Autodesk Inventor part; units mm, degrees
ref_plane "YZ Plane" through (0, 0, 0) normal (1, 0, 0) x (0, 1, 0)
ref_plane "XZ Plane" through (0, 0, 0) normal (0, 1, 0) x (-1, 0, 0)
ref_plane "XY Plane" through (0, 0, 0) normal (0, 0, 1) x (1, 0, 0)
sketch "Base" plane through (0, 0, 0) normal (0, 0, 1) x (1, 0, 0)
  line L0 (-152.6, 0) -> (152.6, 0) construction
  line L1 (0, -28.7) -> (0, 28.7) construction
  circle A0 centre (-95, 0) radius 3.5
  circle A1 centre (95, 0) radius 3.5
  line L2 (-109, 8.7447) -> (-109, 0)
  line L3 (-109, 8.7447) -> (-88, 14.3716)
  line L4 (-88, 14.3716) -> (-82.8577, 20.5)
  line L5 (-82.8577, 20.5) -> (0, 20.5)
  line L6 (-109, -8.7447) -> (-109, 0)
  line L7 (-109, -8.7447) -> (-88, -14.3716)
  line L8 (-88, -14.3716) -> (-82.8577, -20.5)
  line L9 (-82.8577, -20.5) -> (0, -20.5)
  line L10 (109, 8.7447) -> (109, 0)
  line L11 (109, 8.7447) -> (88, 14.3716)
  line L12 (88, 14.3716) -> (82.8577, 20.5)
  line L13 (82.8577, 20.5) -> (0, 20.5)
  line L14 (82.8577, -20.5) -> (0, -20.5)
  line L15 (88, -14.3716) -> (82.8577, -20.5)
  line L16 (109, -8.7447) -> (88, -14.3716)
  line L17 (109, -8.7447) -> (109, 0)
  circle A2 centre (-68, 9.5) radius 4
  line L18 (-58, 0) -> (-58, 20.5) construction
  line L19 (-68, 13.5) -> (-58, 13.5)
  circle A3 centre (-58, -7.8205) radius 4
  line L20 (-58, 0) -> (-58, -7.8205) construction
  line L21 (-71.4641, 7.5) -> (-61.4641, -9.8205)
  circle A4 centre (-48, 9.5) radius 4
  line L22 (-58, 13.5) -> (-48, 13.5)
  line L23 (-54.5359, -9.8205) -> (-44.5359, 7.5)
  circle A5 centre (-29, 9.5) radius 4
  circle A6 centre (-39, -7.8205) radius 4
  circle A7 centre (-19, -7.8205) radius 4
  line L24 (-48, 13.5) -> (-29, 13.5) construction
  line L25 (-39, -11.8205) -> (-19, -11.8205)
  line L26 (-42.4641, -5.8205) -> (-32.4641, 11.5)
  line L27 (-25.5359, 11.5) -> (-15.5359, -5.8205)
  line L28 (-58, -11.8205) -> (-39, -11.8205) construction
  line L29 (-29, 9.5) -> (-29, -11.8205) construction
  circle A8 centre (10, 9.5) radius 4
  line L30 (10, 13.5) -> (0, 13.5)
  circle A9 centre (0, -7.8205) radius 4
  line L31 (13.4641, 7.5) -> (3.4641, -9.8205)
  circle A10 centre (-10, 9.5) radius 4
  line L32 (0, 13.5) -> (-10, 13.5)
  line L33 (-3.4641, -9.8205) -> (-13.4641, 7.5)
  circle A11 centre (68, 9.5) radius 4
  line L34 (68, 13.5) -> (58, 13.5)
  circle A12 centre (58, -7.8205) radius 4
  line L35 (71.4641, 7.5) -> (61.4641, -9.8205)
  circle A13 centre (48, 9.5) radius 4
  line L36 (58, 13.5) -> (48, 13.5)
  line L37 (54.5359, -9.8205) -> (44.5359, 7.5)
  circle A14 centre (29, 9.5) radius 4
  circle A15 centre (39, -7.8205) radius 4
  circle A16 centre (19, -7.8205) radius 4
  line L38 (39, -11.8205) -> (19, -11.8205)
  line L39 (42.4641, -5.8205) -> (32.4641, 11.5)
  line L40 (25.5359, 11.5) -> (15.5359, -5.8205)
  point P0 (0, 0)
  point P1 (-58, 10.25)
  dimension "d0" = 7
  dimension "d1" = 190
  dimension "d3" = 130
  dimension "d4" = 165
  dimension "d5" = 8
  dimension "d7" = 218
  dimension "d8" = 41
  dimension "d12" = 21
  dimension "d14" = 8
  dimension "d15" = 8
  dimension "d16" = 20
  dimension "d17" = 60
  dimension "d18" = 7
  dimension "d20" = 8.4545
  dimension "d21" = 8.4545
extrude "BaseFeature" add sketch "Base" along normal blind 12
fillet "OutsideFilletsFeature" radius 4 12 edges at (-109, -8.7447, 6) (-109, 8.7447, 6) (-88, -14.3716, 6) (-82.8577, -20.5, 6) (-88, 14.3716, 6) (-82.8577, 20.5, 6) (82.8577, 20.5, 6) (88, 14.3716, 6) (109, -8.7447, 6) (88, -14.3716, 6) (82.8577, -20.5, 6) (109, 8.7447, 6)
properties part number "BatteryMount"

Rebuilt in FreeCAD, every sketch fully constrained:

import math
import FreeCAD as App
import Part
import Sketcher
from FreeCAD import Vector
Q = App.Units.Quantity


def edges_at(feature, points):
    """Names of the edges that pass closest to the given points."""
    edges = feature.Shape.Edges
    near = lambda p: min(range(len(edges)), key=lambda i: edges[i].distToShape(Part.Vertex(*p))[0])
    return sorted({f"Edge{near(p) + 1}" for p in points})


def add_polygon(sketch, points):
    """Adds a closed chain of lines whose ends are joined by coincident constraints."""
    first, n = sketch.GeometryCount, len(points)
    for a, b in zip(points, points[1:] + points[:1]):
        sketch.addGeometry(Part.LineSegment(App.Vector(*a, 0), App.Vector(*b, 0)), False)
    for i in range(n):
        sketch.addConstraint(Sketcher.Constraint("Coincident", first + i, 2, first + (i + 1) % n, 1))

doc = App.newDocument("Part")
body = doc.addObject("PartDesign::Body", "Body")

sketch1 = body.newObject("Sketcher::SketchObject", "Sketch")
sketch1.AttachmentSupport = (doc.getObject("XY_Plane"), [""])
sketch1.MapMode = "FlatFace"
add_polygon(sketch1, [(-88, 14.3716), (-109, 8.7447), (-109, -8.7447), (-88, -14.3716), (-82.8577, -20.5), (82.8577, -20.5), (88, -14.3716), (109, -8.7447), (109, 8.7447), (88, 14.3716), (82.8577, 20.5), (-82.8577, 20.5)])
sketch1.addGeometry(Part.Circle(Vector(-95, 0, 0), Vector(0, 0, 1), 3.5), False)
sketch1.addGeometry(Part.ArcOfCircle(Part.Circle(Vector(-68, 9.5, 0), Vector(0, 0, 1), 4), math.radians(90), math.radians(210.000012)), False)
sketch1.addGeometry(Part.LineSegment(Vector(-68, 13.5, 0), Vector(-48, 13.5, 0)), False)
sketch1.addGeometry(Part.ArcOfCircle(Part.Circle(Vector(-48, 9.5, 0), Vector(0, 0, 1), 4), math.radians(-30.000012), math.radians(90)), False)
sketch1.addGeometry(Part.LineSegment(Vector(-44.5359, 7.5, 0), Vector(-54.5359, -9.8205, 0)), False)
sketch1.addGeometry(Part.ArcOfCircle(Part.Circle(Vector(-58, -7.8205, 0), Vector(0, 0, 1), 4), math.radians(-149.999988), math.radians(-30.000012)), False)
sketch1.addGeometry(Part.LineSegment(Vector(-61.4641, -9.8205, 0), Vector(-71.4641, 7.5, 0)), False)
sketch1.addGeometry(Part.ArcOfCircle(Part.Circle(Vector(-29, 9.5, 0), Vector(0, 0, 1), 4), math.radians(30.000012), math.radians(149.999988)), False)
sketch1.addGeometry(Part.LineSegment(Vector(-25.5359, 11.5, 0), Vector(-15.5359, -5.8205, 0)), False)
sketch1.addGeometry(Part.ArcOfCircle(Part.Circle(Vector(-19, -7.8205, 0), Vector(0, 0, 1), 4), math.radians(-90), math.radians(30.000012)), False)
sketch1.addGeometry(Part.LineSegment(Vector(-19, -11.8205, 0), Vector(-39, -11.8205, 0)), False)
sketch1.addGeometry(Part.ArcOfCircle(Part.Circle(Vector(-39, -7.8205, 0), Vector(0, 0, 1), 4), math.radians(149.999988), math.radians(270)), False)
sketch1.addGeometry(Part.LineSegment(Vector(-42.4641, -5.8205, 0), Vector(-32.4641, 11.5, 0)), False)
sketch1.addGeometry(Part.ArcOfCircle(Part.Circle(Vector(10, 9.5, 0), Vector(0, 0, 1), 4), math.radians(-30.000012), math.radians(90)), False)
sketch1.addGeometry(Part.LineSegment(Vector(13.4641, 7.5, 0), Vector(3.4641, -9.8205, 0)), False)
sketch1.addGeometry(Part.ArcOfCircle(Part.Circle(Vector(0, -7.8205, 0), Vector(0, 0, 1), 4), math.radians(-149.999988), math.radians(-30.000012)), False)
sketch1.addGeometry(Part.LineSegment(Vector(-3.4641, -9.8205, 0), Vector(-13.4641, 7.5, 0)), False)
sketch1.addGeometry(Part.ArcOfCircle(Part.Circle(Vector(-10, 9.5, 0), Vector(0, 0, 1), 4), math.radians(90), math.radians(210.000012)), False)
sketch1.addGeometry(Part.LineSegment(Vector(-10, 13.5, 0), Vector(10, 13.5, 0)), False)
sketch1.addGeometry(Part.ArcOfCircle(Part.Circle(Vector(29, 9.5, 0), Vector(0, 0, 1), 4), math.radians(30.000012), math.radians(149.999988)), False)
sketch1.addGeometry(Part.LineSegment(Vector(32.4641, 11.5, 0), Vector(42.4641, -5.8205, 0)), False)
sketch1.addGeometry(Part.ArcOfCircle(Part.Circle(Vector(39, -7.8205, 0), Vector(0, 0, 1), 4), math.radians(-90), math.radians(30.000012)), False)
sketch1.addGeometry(Part.LineSegment(Vector(39, -11.8205, 0), Vector(19, -11.8205, 0)), False)
sketch1.addGeometry(Part.ArcOfCircle(Part.Circle(Vector(19, -7.8205, 0), Vector(0, 0, 1), 4), math.radians(149.999988), math.radians(270)), False)
sketch1.addGeometry(Part.LineSegment(Vector(15.5359, -5.8205, 0), Vector(25.5359, 11.5, 0)), False)
sketch1.addGeometry(Part.ArcOfCircle(Part.Circle(Vector(68, 9.5, 0), Vector(0, 0, 1), 4), math.radians(-30.000012), math.radians(90)), False)
sketch1.addGeometry(Part.LineSegment(Vector(71.4641, 7.5, 0), Vector(61.4641, -9.8205, 0)), False)
sketch1.addGeometry(Part.ArcOfCircle(Part.Circle(Vector(58, -7.8205, 0), Vector(0, 0, 1), 4), math.radians(-149.999988), math.radians(-30.000012)), False)
sketch1.addGeometry(Part.LineSegment(Vector(54.5359, -9.8205, 0), Vector(44.5359, 7.5, 0)), False)
sketch1.addGeometry(Part.ArcOfCircle(Part.Circle(Vector(48, 9.5, 0), Vector(0, 0, 1), 4), math.radians(90), math.radians(210.000012)), False)
sketch1.addGeometry(Part.LineSegment(Vector(48, 13.5, 0), Vector(68, 13.5, 0)), False)
sketch1.addGeometry(Part.Circle(Vector(95, 0, 0), Vector(0, 0, 1), 3.5), False)
sketch1.addConstraint([
    Sketcher.Constraint("Tangent", 13, 1, 14, 1),
    Sketcher.Constraint("Tangent", 14, 2, 15, 2),
    Sketcher.Constraint("Tangent", 15, 1, 16, 1),
    Sketcher.Constraint("Tangent", 16, 2, 17, 2),
    Sketcher.Constraint("Tangent", 17, 1, 18, 1),
    Sketcher.Constraint("Tangent", 18, 2, 13, 2),
    Sketcher.Constraint("Tangent", 19, 1, 20, 1),
    Sketcher.Constraint("Tangent", 20, 2, 21, 2),
    Sketcher.Constraint("Tangent", 21, 1, 22, 1),
    Sketcher.Constraint("Tangent", 22, 2, 23, 2),
    Sketcher.Constraint("Tangent", 23, 1, 24, 1),
    Sketcher.Constraint("Tangent", 24, 2, 19, 2),
    Sketcher.Constraint("Tangent", 25, 1, 26, 1),
    Sketcher.Constraint("Tangent", 26, 2, 27, 2),
    Sketcher.Constraint("Tangent", 27, 1, 28, 1),
    Sketcher.Constraint("Tangent", 28, 2, 29, 2),
    Sketcher.Constraint("Tangent", 29, 1, 30, 1),
    Sketcher.Constraint("Tangent", 30, 2, 25, 2),
    Sketcher.Constraint("Tangent", 31, 1, 32, 1),
    Sketcher.Constraint("Tangent", 32, 2, 33, 2),
    Sketcher.Constraint("Tangent", 33, 1, 34, 1),
    Sketcher.Constraint("Tangent", 34, 2, 35, 2),
    Sketcher.Constraint("Tangent", 35, 1, 36, 1),
    Sketcher.Constraint("Tangent", 36, 2, 31, 2),
    Sketcher.Constraint("Tangent", 37, 1, 38, 1),
    Sketcher.Constraint("Tangent", 38, 2, 39, 2),
    Sketcher.Constraint("Tangent", 39, 1, 40, 1),
    Sketcher.Constraint("Tangent", 40, 2, 41, 2),
    Sketcher.Constraint("Tangent", 41, 1, 42, 1),
    Sketcher.Constraint("Tangent", 42, 2, 37, 2),
    Sketcher.Constraint("Vertical", 1),
    Sketcher.Constraint("Horizontal", 4),
    Sketcher.Constraint("Vertical", 7),
    Sketcher.Constraint("Horizontal", 10),
    Sketcher.Constraint("Horizontal", 14),
    Sketcher.Constraint("Horizontal", 22),
    Sketcher.Constraint("Horizontal", 30),
    Sketcher.Constraint("Horizontal", 34),
    Sketcher.Constraint("Horizontal", 42),
    Sketcher.Constraint("Equal", 13, 15),
    Sketcher.Constraint("Equal", 15, 17),
    Sketcher.Constraint("Equal", 17, 19),
    Sketcher.Constraint("Equal", 19, 21),
    Sketcher.Constraint("Equal", 21, 23),
    Sketcher.Constraint("Equal", 23, 25),
    Sketcher.Constraint("Equal", 25, 27),
    Sketcher.Constraint("Equal", 27, 29),
    Sketcher.Constraint("Equal", 29, 31),
    Sketcher.Constraint("Equal", 31, 33),
    Sketcher.Constraint("Equal", 33, 35),
    Sketcher.Constraint("Equal", 35, 37),
    Sketcher.Constraint("Equal", 37, 39),
    Sketcher.Constraint("Equal", 39, 41),
    Sketcher.Constraint("Equal", 12, 43),
    Sketcher.Constraint("Symmetric", 12, 3, 43, 3, -1, 1),
    Sketcher.Constraint("Symmetric", 0, 2, 6, 2, -1, 1),
    Sketcher.Constraint("Symmetric", 2, 2, 8, 2, -1, 1),
    Sketcher.Constraint("Symmetric", 3, 2, 9, 2, -1, 1),
    Sketcher.Constraint("Symmetric", 5, 2, 11, 2, -1, 1),
    Sketcher.Constraint("Symmetric", 19, 3, 31, 3, -2),
    Sketcher.Constraint("Symmetric", 23, 3, 33, 3, -2),
    Sketcher.Constraint("Symmetric", 13, 3, 37, 3, -2),
    Sketcher.Constraint("Symmetric", 17, 3, 39, 3, -2),
    Sketcher.Constraint("Symmetric", 2, 2, 5, 2, -2),
    Sketcher.Constraint("Symmetric", 26, 2, 27, 1, -2),
    Sketcher.Constraint("PointOnObject", 12, 3, -1),
    Sketcher.Constraint("Parallel", 2, 8),
    Sketcher.Constraint("Parallel", 5, 11),
    Sketcher.Constraint("Parallel", 18, 20),
    Sketcher.Constraint("Parallel", 16, 24),
    Sketcher.Constraint("Parallel", 24, 26),
    Sketcher.Constraint("Parallel", 20, 28),
    Sketcher.Constraint("Parallel", 26, 36),
    Sketcher.Constraint("Parallel", 32, 40),
    Sketcher.Constraint("Horizontal", 15, 3, 19, 3),
    Sketcher.Constraint("Horizontal", 17, 3, 21, 3),
    Sketcher.Constraint("Horizontal", 19, 3, 25, 3),
    Sketcher.Constraint("Horizontal", 23, 3, 27, 3),
    Sketcher.Constraint("Horizontal", 1, 2, 6, 2),
    Sketcher.Constraint("Vertical", 4, 2, 9, 2),
    Sketcher.Constraint("Diameter", 12, Q("7 mm")),
    Sketcher.Constraint("Radius", 13, Q("4 mm")),
    Sketcher.Constraint("DistanceX", 14, 1, 14, 2, Q("20 mm")),
    Sketcher.Constraint("Angle", 0, Q("-165 deg")),
    Sketcher.Constraint("Angle", 9, Q("129.9998 deg")),
    Sketcher.Constraint("Angle", 20, Q("-60 deg")),
    Sketcher.Constraint("Distance", 3, Q("8 mm")),
    Sketcher.Constraint("DistanceX", 0, 2, 13, 3, Q("41 mm")),
    Sketcher.Constraint("DistanceX", 12, 3, 2, 2, Q("7 mm")),
    Sketcher.Constraint("DistanceX", 1, 2, 2, 2, Q("21 mm")),
    Sketcher.Constraint("DistanceY", 13, 1, 10, 2, Q("7 mm")),
    Sketcher.Constraint("DistanceX", 12, 3, -1, 1, Q("95 mm")),
    Sketcher.Constraint("DistanceX", 19, 3, -1, 1, Q("29 mm")),
    Sketcher.Constraint("DistanceY", 3, 2, 13, 3, Q("30 mm")),
])
pad1 = body.newObject("PartDesign::Pad", "Pad")
pad1.Profile = sketch1
pad1.Length = 12
doc.recompute()

fillet = body.newObject("PartDesign::Fillet", "Fillet")
fillet.Base = (pad1, edges_at(pad1, [
    (-109, -8.745, 6),
    (-109, 8.745, 6),
    (-88, -14.372, 6),
    (-82.858, -20.5, 6),
    (-88, 14.372, 6),
    (-82.858, 20.5, 6),
    (82.858, 20.5, 6),
    (88, 14.372, 6),
    (109, -8.745, 6),
    (88, -14.372, 6),
    (82.858, -20.5, 6),
    (109, 8.745, 6),
]))
fillet.Radius = 4

doc.recompute()
